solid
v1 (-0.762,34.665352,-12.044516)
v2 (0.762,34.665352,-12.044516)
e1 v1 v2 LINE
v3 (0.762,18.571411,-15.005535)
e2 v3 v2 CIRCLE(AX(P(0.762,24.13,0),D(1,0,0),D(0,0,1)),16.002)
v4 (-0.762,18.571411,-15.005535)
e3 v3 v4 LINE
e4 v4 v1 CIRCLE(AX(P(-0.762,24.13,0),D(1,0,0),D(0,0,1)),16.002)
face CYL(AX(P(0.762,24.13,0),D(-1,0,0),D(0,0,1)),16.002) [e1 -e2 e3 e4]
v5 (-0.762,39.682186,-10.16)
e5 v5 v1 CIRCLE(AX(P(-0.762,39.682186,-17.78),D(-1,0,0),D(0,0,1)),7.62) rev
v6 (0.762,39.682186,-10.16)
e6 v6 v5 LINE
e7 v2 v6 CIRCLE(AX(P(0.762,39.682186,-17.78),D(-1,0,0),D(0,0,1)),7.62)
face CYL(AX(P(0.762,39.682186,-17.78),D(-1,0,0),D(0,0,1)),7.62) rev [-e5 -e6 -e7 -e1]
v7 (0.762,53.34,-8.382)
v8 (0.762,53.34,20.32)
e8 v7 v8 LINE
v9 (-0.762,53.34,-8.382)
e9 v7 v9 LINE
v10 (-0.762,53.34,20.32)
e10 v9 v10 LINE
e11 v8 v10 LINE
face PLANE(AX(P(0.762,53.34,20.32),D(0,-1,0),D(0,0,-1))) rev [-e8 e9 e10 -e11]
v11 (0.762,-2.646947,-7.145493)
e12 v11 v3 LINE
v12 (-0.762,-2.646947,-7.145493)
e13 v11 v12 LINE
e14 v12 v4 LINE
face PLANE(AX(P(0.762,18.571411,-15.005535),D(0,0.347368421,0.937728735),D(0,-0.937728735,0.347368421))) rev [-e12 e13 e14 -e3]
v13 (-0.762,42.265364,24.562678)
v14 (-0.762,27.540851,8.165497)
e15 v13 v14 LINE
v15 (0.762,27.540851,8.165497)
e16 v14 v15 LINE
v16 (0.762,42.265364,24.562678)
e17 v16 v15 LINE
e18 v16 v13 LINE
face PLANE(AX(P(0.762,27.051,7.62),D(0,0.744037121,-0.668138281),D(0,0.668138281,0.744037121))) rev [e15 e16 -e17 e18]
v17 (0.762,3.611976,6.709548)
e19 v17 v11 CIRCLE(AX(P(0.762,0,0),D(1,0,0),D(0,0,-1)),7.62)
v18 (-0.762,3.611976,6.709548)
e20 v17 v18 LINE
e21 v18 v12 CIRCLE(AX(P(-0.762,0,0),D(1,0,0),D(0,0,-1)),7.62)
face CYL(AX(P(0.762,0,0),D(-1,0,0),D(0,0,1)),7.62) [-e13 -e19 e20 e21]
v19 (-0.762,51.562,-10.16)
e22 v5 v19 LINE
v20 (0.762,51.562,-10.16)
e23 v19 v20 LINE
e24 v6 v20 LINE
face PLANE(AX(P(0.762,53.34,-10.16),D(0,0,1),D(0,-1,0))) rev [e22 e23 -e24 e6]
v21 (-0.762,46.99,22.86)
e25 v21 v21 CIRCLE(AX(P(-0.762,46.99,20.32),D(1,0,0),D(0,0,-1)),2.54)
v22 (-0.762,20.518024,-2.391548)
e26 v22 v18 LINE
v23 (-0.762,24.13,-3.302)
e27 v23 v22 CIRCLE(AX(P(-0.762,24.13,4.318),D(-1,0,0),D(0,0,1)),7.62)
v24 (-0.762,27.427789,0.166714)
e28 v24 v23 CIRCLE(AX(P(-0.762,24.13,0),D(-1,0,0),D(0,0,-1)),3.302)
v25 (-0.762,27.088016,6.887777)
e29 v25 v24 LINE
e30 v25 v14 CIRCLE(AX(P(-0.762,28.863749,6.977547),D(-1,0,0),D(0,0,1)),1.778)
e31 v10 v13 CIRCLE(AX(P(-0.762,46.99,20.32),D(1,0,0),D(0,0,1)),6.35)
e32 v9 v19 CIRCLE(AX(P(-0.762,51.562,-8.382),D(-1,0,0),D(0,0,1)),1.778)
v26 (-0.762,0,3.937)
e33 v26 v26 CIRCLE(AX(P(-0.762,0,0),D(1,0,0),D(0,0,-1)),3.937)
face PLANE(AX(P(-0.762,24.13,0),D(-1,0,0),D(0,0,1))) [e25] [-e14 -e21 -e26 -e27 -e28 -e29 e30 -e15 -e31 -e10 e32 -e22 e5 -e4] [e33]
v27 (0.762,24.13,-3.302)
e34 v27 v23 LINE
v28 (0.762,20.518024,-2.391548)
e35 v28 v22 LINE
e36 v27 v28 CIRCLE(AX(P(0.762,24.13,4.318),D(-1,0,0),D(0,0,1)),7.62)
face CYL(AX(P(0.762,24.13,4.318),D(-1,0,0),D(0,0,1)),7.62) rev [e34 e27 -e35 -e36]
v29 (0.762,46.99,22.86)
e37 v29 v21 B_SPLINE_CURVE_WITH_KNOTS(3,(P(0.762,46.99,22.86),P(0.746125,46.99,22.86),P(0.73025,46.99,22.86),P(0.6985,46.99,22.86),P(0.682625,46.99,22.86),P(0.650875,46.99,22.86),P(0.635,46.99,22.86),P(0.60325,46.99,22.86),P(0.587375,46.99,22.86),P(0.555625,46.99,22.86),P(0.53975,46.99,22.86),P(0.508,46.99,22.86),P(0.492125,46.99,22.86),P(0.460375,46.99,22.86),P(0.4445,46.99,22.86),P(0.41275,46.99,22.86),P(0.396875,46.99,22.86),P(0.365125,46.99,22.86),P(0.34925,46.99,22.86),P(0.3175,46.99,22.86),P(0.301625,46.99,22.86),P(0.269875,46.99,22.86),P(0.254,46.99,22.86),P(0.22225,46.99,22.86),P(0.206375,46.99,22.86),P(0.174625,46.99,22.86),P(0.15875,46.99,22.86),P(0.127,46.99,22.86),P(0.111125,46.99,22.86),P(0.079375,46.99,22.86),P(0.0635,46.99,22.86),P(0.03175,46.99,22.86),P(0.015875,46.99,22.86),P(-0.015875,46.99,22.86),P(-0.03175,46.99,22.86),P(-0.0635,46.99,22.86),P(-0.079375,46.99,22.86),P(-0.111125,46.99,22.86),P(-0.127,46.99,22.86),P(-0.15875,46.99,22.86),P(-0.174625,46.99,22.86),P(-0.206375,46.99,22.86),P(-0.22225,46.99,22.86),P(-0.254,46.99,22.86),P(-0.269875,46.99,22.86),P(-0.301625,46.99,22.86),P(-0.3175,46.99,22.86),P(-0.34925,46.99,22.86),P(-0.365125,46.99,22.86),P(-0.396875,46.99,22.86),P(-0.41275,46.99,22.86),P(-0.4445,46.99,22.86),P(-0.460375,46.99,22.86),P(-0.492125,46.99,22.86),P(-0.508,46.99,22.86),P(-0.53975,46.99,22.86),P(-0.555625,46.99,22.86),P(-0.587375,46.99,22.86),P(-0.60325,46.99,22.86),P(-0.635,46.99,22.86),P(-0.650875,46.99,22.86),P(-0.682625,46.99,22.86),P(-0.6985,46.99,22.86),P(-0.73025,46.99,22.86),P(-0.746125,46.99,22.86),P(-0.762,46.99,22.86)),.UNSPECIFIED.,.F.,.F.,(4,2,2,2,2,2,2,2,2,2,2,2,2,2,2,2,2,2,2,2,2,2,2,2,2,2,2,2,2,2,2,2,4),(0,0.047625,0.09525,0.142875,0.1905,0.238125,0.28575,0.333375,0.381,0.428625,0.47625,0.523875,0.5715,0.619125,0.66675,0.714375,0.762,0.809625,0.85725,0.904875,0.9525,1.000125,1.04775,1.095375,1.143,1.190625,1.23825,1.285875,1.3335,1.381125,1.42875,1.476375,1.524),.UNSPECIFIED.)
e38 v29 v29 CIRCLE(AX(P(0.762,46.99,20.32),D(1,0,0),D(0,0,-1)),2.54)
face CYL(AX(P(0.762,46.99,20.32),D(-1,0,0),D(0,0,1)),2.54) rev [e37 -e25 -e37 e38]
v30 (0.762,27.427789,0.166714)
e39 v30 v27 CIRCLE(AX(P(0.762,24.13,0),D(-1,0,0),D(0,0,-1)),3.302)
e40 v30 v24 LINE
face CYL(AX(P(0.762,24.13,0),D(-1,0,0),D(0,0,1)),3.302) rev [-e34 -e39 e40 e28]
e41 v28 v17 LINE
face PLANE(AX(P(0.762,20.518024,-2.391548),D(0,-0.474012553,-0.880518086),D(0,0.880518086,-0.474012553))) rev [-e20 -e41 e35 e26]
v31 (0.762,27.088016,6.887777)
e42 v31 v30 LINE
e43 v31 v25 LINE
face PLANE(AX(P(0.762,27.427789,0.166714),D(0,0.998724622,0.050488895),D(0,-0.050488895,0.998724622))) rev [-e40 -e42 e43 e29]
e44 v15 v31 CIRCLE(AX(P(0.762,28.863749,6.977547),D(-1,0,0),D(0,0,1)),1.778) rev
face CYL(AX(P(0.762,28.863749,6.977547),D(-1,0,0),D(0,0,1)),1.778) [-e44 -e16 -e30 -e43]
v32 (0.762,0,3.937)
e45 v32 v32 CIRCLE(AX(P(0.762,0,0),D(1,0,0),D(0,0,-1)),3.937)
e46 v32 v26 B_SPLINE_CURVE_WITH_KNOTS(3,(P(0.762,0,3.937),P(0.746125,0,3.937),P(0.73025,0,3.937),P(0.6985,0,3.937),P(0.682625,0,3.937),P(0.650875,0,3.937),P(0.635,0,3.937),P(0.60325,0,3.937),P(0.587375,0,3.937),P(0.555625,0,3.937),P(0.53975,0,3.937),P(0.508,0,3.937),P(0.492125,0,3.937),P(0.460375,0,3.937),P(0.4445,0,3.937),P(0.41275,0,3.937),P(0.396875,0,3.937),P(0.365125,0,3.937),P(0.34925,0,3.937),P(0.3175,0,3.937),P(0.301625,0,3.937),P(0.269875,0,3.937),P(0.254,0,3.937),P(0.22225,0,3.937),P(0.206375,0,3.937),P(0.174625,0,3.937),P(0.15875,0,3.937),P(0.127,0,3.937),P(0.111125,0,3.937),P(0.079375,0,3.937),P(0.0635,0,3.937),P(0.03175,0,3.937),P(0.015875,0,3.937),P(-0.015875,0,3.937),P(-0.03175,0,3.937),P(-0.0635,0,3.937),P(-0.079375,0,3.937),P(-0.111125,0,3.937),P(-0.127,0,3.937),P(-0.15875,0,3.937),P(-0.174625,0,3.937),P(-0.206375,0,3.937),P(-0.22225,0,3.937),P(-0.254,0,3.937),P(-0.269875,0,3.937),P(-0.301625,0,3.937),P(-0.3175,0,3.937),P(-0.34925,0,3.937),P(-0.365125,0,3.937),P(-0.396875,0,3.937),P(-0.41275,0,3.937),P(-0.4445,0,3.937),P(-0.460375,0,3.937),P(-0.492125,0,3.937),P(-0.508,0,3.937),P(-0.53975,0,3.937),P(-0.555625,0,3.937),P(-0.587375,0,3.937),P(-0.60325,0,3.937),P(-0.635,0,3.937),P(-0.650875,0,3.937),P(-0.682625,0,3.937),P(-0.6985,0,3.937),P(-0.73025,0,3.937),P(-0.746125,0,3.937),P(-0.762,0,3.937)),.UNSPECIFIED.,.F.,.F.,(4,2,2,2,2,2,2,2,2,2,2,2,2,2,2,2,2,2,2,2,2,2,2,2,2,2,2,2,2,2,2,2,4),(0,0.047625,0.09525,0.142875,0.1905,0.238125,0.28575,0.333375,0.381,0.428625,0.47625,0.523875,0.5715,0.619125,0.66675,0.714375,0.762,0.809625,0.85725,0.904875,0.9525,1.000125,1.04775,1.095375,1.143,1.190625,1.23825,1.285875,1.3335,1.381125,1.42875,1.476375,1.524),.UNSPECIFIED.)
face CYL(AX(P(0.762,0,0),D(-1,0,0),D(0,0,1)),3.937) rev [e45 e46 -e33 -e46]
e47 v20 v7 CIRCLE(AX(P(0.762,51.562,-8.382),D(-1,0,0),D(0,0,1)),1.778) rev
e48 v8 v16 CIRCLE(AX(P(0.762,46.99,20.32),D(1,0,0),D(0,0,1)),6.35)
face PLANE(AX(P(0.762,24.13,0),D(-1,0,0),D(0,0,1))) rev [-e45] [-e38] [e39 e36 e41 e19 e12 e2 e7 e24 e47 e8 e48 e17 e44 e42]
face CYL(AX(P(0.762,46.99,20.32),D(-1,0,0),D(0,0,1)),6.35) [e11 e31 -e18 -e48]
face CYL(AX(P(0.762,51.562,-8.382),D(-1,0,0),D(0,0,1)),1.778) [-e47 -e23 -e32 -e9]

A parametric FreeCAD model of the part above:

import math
import FreeCAD as App
import Part
import Sketcher

V = App.Vector
Q = App.Units.Quantity


def edges_at(feature, points):
    """Names of the edges that pass closest to the given points."""
    edges = feature.Shape.Edges
    near = lambda p: min(range(len(edges)), key=lambda i: edges[i].distToShape(Part.Vertex(*p))[0])
    return sorted({f"Edge{near(p) + 1}" for p in points})

doc = App.newDocument("Part")
body = doc.addObject("PartDesign::Body", "Body")

# Sketch on YZ plane
sketch1 = body.newObject("Sketcher::SketchObject", "Sketch")
sketch1.AttachmentSupport = (doc.getObject("YZ_Plane"), [""])
sketch1.MapMode = "FlatFace"
sketch1.addGeometry([
    Part.LineSegment(V(27.1, 7.6, 0), V(27.4, 0.2, 0)),  # 0
    Part.ArcOfCircle(Part.Circle(V(24.1, 0, 0), V(0, 0, 1), 3.3), math.radians(-90), math.radians(3)),  # 1
    Part.ArcOfCircle(Part.Circle(V(24.1, 4.3, 0), V(0, 0, 1), 7.6), math.radians(-118), math.radians(-90)),  # 2
    Part.LineSegment(V(20.5, -2.4, 0), V(3.6, 6.7, 0)),  # 3
    Part.ArcOfCircle(Part.Circle(V(0, 0, 0), V(0, 0, 1), 7.6), math.radians(62), math.radians(250)),  # 4
    Part.LineSegment(V(-2.6, -7.1, 0), V(18.6, -15, 0)),  # 5
    Part.ArcOfCircle(Part.Circle(V(24.1, 0, 0), V(0, 0, 1), 16), math.radians(-110), math.radians(-39)),  # 6
    Part.LineSegment(V(36.5, -10.2, 0), V(53.3, -10.2, 0)),  # 7
    Part.LineSegment(V(53.3, -10.2, 0), V(53.3, 20.3, 0)),  # 8
    Part.ArcOfCircle(Part.Circle(V(47, 20.3, 0), V(0, 0, 1), 6.3), math.radians(0), math.radians(138)),  # 9
    Part.LineSegment(V(42.3, 24.6, 0), V(27.1, 7.6, 0)),  # 10
    Part.Circle(V(0, 0, 0), V(0, 0, 1), 3.9),  # 11
    Part.Circle(V(47, 20.3, 0), V(0, 0, 1), 2.5),  # 12
], False)
sketch1.addConstraint([
    Sketcher.Constraint("Tangent", 0, 2, 1, 2),
    Sketcher.Constraint("Tangent", 1, 1, 2, 2),
    Sketcher.Constraint("Tangent", 2, 1, 3, 1),
    Sketcher.Constraint("Tangent", 3, 2, 4, 1),
    Sketcher.Constraint("Tangent", 4, 2, 5, 1),
    Sketcher.Constraint("Tangent", 5, 2, 6, 1),
    Sketcher.Constraint("Coincident", 6, 2, 7, 1),
    Sketcher.Constraint("Coincident", 7, 2, 8, 1),
    Sketcher.Constraint("Tangent", 8, 2, 9, 1),
    Sketcher.Constraint("Tangent", 9, 2, 10, 1),
    Sketcher.Constraint("Coincident", 10, 2, 0, 1),
    Sketcher.Constraint("Horizontal", 7),
    Sketcher.Constraint("Vertical", 8),
    Sketcher.Constraint("Coincident", 4, 3, -1, 1),
    Sketcher.Constraint("Coincident", 11, 3, -1, 1),
    Sketcher.Constraint("Coincident", 6, 3, 1, 3),
    Sketcher.Constraint("Coincident", 12, 3, 9, 3),
    Sketcher.Constraint("Equal", 2, 4),
    Sketcher.Constraint("PointOnObject", 1, 3, -1),
    Sketcher.Constraint("Vertical", 1, 3, 2, 3),
    Sketcher.Constraint("Diameter", 12, Q("0.2 in")),
    Sketcher.Constraint("Radius", 2, Q("0.3 in")),
    Sketcher.Constraint("Diameter", 11, Q("0.31 in")),
    Sketcher.Constraint("Radius", 1, Q("0.13 in")),
    Sketcher.Constraint("Radius", 6, Q("0.63 in")),
    Sketcher.Constraint("Radius", 9, Q("0.25 in")),
    Sketcher.Constraint("DistanceY", 8, 1, 8, 2, Q("1.2 in")),
    Sketcher.Constraint("DistanceY", -1, 1, 9, 3, Q("0.8 in")),
    Sketcher.Constraint("DistanceX", -1, 1, 7, 2, Q("2.1 in")),
    Sketcher.Constraint("DistanceY", -1, 1, 10, 2, Q("0.3 in")),
    Sketcher.Constraint("DistanceX", 2, 3, 9, 3, Q("0.9 in")),
    Sketcher.Constraint("DistanceX", -1, 1, 10, 2, Q("1.065 in")),
])
pad1 = body.newObject("PartDesign::Pad", "Pad")
pad1.Profile = sketch1
pad1.Length = Q("0.06 in")
pad1.Midplane = True
doc.recompute()

fillet = body.newObject("PartDesign::Fillet", "Fillet")
fillet.Base = (pad1, edges_at(pad1, [(0, 27.051, 7.62), (0, 53.34, -10.16)]))
fillet.Radius = Q("0.07 in")
doc.recompute()

fillet2 = body.newObject("PartDesign::Fillet", "Fillet001")
fillet2.Base = (fillet, edges_at(fillet, [(0, 36.493, -10.16)]))
fillet2.Radius = Q("0.3 in")

doc.recompute()
